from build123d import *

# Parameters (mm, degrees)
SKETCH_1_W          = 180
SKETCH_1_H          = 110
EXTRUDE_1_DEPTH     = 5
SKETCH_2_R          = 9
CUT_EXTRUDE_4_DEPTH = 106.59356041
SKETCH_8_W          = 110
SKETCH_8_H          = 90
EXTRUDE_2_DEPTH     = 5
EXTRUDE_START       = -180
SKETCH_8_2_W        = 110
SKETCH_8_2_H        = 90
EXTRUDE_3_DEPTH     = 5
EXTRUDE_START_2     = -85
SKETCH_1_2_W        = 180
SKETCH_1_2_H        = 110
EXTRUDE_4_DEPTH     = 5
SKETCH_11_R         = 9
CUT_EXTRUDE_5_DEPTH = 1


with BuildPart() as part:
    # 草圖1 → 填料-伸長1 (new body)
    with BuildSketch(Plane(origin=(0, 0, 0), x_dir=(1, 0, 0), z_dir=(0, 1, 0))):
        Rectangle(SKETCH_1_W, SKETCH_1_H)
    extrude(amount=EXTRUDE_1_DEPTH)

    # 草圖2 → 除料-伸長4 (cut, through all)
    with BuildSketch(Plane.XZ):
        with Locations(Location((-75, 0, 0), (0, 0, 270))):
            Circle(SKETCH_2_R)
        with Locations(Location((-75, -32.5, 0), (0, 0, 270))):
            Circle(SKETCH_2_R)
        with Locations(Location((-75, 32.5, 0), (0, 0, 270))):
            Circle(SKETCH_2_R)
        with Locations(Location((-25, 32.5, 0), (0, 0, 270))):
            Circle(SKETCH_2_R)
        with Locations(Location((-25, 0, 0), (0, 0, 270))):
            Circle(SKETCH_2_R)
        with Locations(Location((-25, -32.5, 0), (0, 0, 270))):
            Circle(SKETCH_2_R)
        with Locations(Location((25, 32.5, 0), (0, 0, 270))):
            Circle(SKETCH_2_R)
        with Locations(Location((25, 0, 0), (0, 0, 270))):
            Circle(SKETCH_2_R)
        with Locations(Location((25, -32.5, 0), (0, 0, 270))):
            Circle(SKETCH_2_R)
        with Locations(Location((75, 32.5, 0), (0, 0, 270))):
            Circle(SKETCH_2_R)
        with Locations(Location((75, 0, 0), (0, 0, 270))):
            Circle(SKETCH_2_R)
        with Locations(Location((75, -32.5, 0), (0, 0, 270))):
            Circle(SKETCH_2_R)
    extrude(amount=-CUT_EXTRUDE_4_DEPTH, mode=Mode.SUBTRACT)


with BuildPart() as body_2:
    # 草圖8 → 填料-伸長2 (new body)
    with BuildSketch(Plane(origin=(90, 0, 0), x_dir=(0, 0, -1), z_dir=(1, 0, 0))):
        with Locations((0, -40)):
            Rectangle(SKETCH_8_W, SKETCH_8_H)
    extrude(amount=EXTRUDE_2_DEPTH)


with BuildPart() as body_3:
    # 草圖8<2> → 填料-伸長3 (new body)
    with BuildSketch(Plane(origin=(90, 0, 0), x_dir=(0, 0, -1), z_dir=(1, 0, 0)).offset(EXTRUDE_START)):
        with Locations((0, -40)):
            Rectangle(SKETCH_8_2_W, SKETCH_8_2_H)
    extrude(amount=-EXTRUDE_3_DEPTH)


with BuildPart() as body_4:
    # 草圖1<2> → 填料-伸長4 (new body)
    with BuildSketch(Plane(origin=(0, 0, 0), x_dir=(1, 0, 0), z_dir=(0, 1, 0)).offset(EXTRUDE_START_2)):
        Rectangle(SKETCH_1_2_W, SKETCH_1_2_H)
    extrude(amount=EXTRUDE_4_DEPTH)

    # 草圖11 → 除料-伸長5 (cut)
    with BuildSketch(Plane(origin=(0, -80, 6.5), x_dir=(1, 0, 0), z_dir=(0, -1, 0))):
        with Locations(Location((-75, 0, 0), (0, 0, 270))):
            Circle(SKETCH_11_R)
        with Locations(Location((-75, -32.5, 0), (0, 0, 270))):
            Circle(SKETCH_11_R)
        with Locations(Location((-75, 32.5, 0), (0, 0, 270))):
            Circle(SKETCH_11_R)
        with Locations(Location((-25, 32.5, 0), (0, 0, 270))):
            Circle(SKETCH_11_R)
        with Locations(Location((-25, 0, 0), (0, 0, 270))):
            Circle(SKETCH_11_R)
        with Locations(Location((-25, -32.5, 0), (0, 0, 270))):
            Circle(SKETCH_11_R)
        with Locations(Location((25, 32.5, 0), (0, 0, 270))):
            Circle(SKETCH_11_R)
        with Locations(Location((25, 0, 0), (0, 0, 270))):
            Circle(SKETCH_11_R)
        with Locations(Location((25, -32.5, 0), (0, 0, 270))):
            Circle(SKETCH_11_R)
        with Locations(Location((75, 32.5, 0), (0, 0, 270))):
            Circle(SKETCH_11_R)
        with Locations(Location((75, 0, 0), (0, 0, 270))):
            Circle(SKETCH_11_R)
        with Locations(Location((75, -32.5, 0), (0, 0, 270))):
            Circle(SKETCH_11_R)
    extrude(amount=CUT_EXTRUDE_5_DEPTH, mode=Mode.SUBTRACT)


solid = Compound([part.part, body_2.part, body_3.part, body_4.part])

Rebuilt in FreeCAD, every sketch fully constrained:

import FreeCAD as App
import Part
import Sketcher

doc = App.newDocument("Part")
params = doc.addObject("Spreadsheet::Sheet", "Params")
for row, (alias, value) in enumerate([
    ("sketch1_width", "180 mm"),
    ("sketch1_height", "110 mm"),
    ("pad1_length", "5 mm"),
    ("sketch2_diameter", "18 mm"),
    ("sketch3_width", "90 mm"),
    ("sketch3_height", "110 mm"),
    ("pad2_length", "5 mm"),
    ("sketch4_width", "90 mm"),
    ("sketch4_height", "110 mm"),
    ("pad3_length", "5 mm"),
    ("sketch5_width", "180 mm"),
    ("sketch5_height", "110 mm"),
    ("pad4_length", "5 mm"),
    ("sketch6_diameter", "18 mm"),
    ("pocket2_length", "1 mm"),
], start=1):
    params.set(f"A{row}", alias)
    params.set(f"B{row}", "=" + value)
    params.setAlias(f"B{row}", alias)

body = doc.addObject("PartDesign::Body", "Body")

sketch1 = body.newObject("Sketcher::SketchObject", "Sketch")
sketch1.AttachmentSupport = (doc.getObject("XZ_Plane"), [""])
sketch1.MapMode = "FlatFace"
sketch1.addGeometry(Part.LineSegment(App.Vector(-90, -55, 0), App.Vector(-90, 55, 0)), False)
sketch1.addGeometry(Part.LineSegment(App.Vector(-90, 55, 0), App.Vector(90, 55, 0)), False)
sketch1.addGeometry(Part.LineSegment(App.Vector(90, 55, 0), App.Vector(90, -55, 0)), False)
sketch1.addGeometry(Part.LineSegment(App.Vector(90, -55, 0), App.Vector(-90, -55, 0)), False)
sketch1.addConstraint(Sketcher.Constraint("Coincident", 0, 2, 1, 1))
sketch1.addConstraint(Sketcher.Constraint("Coincident", 1, 2, 2, 1))
sketch1.addConstraint(Sketcher.Constraint("Coincident", 2, 2, 3, 1))
sketch1.addConstraint(Sketcher.Constraint("Coincident", 3, 2, 0, 1))
sketch1.addConstraint(Sketcher.Constraint("Vertical", 0))
sketch1.addConstraint(Sketcher.Constraint("Horizontal", 1))
sketch1.addConstraint(Sketcher.Constraint("Vertical", 2))
sketch1.addConstraint(Sketcher.Constraint("Horizontal", 3))
sketch1.addConstraint(Sketcher.Constraint("Symmetric", 0, 2, 2, 2, -1, 1))
sketch1.addConstraint(Sketcher.Constraint("DistanceX", 1, 1, 1, 2, 180.0))
sketch1.addConstraint(Sketcher.Constraint("DistanceY", 0, 1, 0, 2, 110.0))
sketch1.setExpression("Constraints[9]", "Params.sketch1_width")
sketch1.setExpression("Constraints[10]", "Params.sketch1_height")
pad1 = body.newObject("PartDesign::Pad", "Pad")
pad1.Profile = sketch1
pad1.setExpression("Length", "Params.pad1_length")
pad1.Reversed = True

sketch2 = body.newObject("Sketcher::SketchObject", "Sketch001")
sketch2.AttachmentSupport = (doc.getObject("XZ_Plane"), [""])
sketch2.MapMode = "FlatFace"
sketch2.addGeometry(Part.Circle(App.Vector(-75, 0, 0), App.Vector(0, 0, 1), 9), False)
sketch2.addGeometry(Part.Circle(App.Vector(-75, -32, 0), App.Vector(0, 0, 1), 9), False)
sketch2.addGeometry(Part.Circle(App.Vector(-75, 32, 0), App.Vector(0, 0, 1), 9), False)
sketch2.addGeometry(Part.Circle(App.Vector(-25, 32, 0), App.Vector(0, 0, 1), 9), False)
sketch2.addGeometry(Part.Circle(App.Vector(-25, 0, 0), App.Vector(0, 0, 1), 9), False)
sketch2.addGeometry(Part.Circle(App.Vector(-25, -32, 0), App.Vector(0, 0, 1), 9), False)
sketch2.addGeometry(Part.Circle(App.Vector(25, 32, 0), App.Vector(0, 0, 1), 9), False)
sketch2.addGeometry(Part.Circle(App.Vector(25, 0, 0), App.Vector(0, 0, 1), 9), False)
sketch2.addGeometry(Part.Circle(App.Vector(25, -32, 0), App.Vector(0, 0, 1), 9), False)
sketch2.addGeometry(Part.Circle(App.Vector(75, 32, 0), App.Vector(0, 0, 1), 9), False)
sketch2.addGeometry(Part.Circle(App.Vector(75, 0, 0), App.Vector(0, 0, 1), 9), False)
sketch2.addGeometry(Part.Circle(App.Vector(75, -32, 0), App.Vector(0, 0, 1), 9), False)
sketch2.addConstraint(Sketcher.Constraint("Equal", 0, 1))
sketch2.addConstraint(Sketcher.Constraint("Equal", 1, 2))
sketch2.addConstraint(Sketcher.Constraint("Equal", 2, 3))
sketch2.addConstraint(Sketcher.Constraint("Equal", 3, 4))
sketch2.addConstraint(Sketcher.Constraint("Equal", 4, 5))
sketch2.addConstraint(Sketcher.Constraint("Equal", 5, 6))
sketch2.addConstraint(Sketcher.Constraint("Equal", 6, 7))
sketch2.addConstraint(Sketcher.Constraint("Equal", 7, 8))
sketch2.addConstraint(Sketcher.Constraint("Equal", 8, 9))
sketch2.addConstraint(Sketcher.Constraint("Equal", 9, 10))
sketch2.addConstraint(Sketcher.Constraint("Equal", 10, 11))
sketch2.addConstraint(Sketcher.Constraint("Symmetric", 5, 3, 6, 3, -1, 1))
sketch2.addConstraint(Sketcher.Constraint("Symmetric", 4, 3, 7, 3, -1, 1))
sketch2.addConstraint(Sketcher.Constraint("Symmetric", 3, 3, 8, 3, -1, 1))
sketch2.addConstraint(Sketcher.Constraint("Symmetric", 1, 3, 9, 3, -1, 1))
sketch2.addConstraint(Sketcher.Constraint("Symmetric", 0, 3, 10, 3, -1, 1))
sketch2.addConstraint(Sketcher.Constraint("Symmetric", 2, 3, 11, 3, -1, 1))
sketch2.addConstraint(Sketcher.Constraint("Symmetric", 3, 3, 6, 3, -2))
sketch2.addConstraint(Sketcher.Constraint("Symmetric", 2, 3, 9, 3, -2))
sketch2.addConstraint(Sketcher.Constraint("PointOnObject", 0, 3, -1))
sketch2.addConstraint(Sketcher.Constraint("PointOnObject", 4, 3, -1))
sketch2.addConstraint(Sketcher.Constraint("Horizontal", 2, 3, 3, 3))
sketch2.addConstraint(Sketcher.Constraint("Vertical", 0, 3, 1, 3))
sketch2.addConstraint(Sketcher.Constraint("Vertical", 3, 3, 4, 3))
sketch2.addConstraint(Sketcher.Constraint("Diameter", 0, 18.0))
sketch2.addConstraint(Sketcher.Constraint("DistanceX", 0, 3, -1, 1, 75.0))
sketch2.addConstraint(Sketcher.Constraint("DistanceX", 3, 3, -1, 1, 25.0))
sketch2.addConstraint(Sketcher.Constraint("DistanceY", 1, 3, 2, 3, 65.0))
sketch2.setExpression("Constraints[24]", "Params.sketch2_diameter")
pocket1 = body.newObject("PartDesign::Pocket", "Pocket")
pocket1.Profile = sketch2
pocket1.Type = "ThroughAll"
body2 = doc.addObject("PartDesign::Body", "Body001")

sketch3 = body2.newObject("Sketcher::SketchObject", "Sketch002")
sketch3.AttachmentSupport = (doc.getObject("YZ_Plane001"), [""])
sketch3.MapMode = "FlatFace"
sketch3.AttachmentOffset = App.Placement(App.Vector(0, 0, 90), App.Rotation())
sketch3.addGeometry(Part.LineSegment(App.Vector(5, 55, 0), App.Vector(-85, 55, 0)), False)
sketch3.addGeometry(Part.LineSegment(App.Vector(-85, 55, 0), App.Vector(-85, -55, 0)), False)
sketch3.addGeometry(Part.LineSegment(App.Vector(-85, -55, 0), App.Vector(5, -55, 0)), False)
sketch3.addGeometry(Part.LineSegment(App.Vector(5, -55, 0), App.Vector(5, 55, 0)), False)
sketch3.addConstraint(Sketcher.Constraint("Coincident", 0, 2, 1, 1))
sketch3.addConstraint(Sketcher.Constraint("Coincident", 1, 2, 2, 1))
sketch3.addConstraint(Sketcher.Constraint("Coincident", 2, 2, 3, 1))
sketch3.addConstraint(Sketcher.Constraint("Coincident", 3, 2, 0, 1))
sketch3.addConstraint(Sketcher.Constraint("Horizontal", 0))
sketch3.addConstraint(Sketcher.Constraint("Vertical", 1))
sketch3.addConstraint(Sketcher.Constraint("Horizontal", 2))
sketch3.addConstraint(Sketcher.Constraint("Vertical", 3))
sketch3.addConstraint(Sketcher.Constraint("DistanceX", 0, 2, 0, 1, 90.0))
sketch3.addConstraint(Sketcher.Constraint("DistanceY", 1, 2, 1, 1, 110.0))
sketch3.addConstraint(Sketcher.Constraint("DistanceX", 0, 2, -1, 1, 85.0))
sketch3.addConstraint(Sketcher.Constraint("DistanceY", -1, 1, 0, 2, 55.0))
sketch3.setExpression("Constraints[8]", "Params.sketch3_width")
sketch3.setExpression("Constraints[9]", "Params.sketch3_height")
pad2 = body2.newObject("PartDesign::Pad", "Pad001")
pad2.Profile = sketch3
pad2.setExpression("Length", "Params.pad2_length")
body3 = doc.addObject("PartDesign::Body", "Body002")

sketch4 = body3.newObject("Sketcher::SketchObject", "Sketch003")
sketch4.AttachmentSupport = (doc.getObject("YZ_Plane002"), [""])
sketch4.MapMode = "FlatFace"
sketch4.AttachmentOffset = App.Placement(App.Vector(0, 0, -90), App.Rotation())
sketch4.addGeometry(Part.LineSegment(App.Vector(5, 55, 0), App.Vector(-85, 55, 0)), False)
sketch4.addGeometry(Part.LineSegment(App.Vector(-85, 55, 0), App.Vector(-85, -55, 0)), False)
sketch4.addGeometry(Part.LineSegment(App.Vector(-85, -55, 0), App.Vector(5, -55, 0)), False)
sketch4.addGeometry(Part.LineSegment(App.Vector(5, -55, 0), App.Vector(5, 55, 0)), False)
sketch4.addConstraint(Sketcher.Constraint("Coincident", 0, 2, 1, 1))
sketch4.addConstraint(Sketcher.Constraint("Coincident", 1, 2, 2, 1))
sketch4.addConstraint(Sketcher.Constraint("Coincident", 2, 2, 3, 1))
sketch4.addConstraint(Sketcher.Constraint("Coincident", 3, 2, 0, 1))
sketch4.addConstraint(Sketcher.Constraint("Horizontal", 0))
sketch4.addConstraint(Sketcher.Constraint("Vertical", 1))
sketch4.addConstraint(Sketcher.Constraint("Horizontal", 2))
sketch4.addConstraint(Sketcher.Constraint("Vertical", 3))
sketch4.addConstraint(Sketcher.Constraint("DistanceX", 0, 2, 0, 1, 90.0))
sketch4.addConstraint(Sketcher.Constraint("DistanceY", 1, 2, 1, 1, 110.0))
sketch4.addConstraint(Sketcher.Constraint("DistanceX", 0, 2, -1, 1, 85.0))
sketch4.addConstraint(Sketcher.Constraint("DistanceY", -1, 1, 0, 2, 55.0))
sketch4.setExpression("Constraints[8]", "Params.sketch4_width")
sketch4.setExpression("Constraints[9]", "Params.sketch4_height")
pad3 = body3.newObject("PartDesign::Pad", "Pad002")
pad3.Profile = sketch4
pad3.setExpression("Length", "Params.pad3_length")
pad3.Reversed = True
body4 = doc.addObject("PartDesign::Body", "Body003")

sketch5 = body4.newObject("Sketcher::SketchObject", "Sketch004")
sketch5.AttachmentSupport = (doc.getObject("XZ_Plane003"), [""])
sketch5.MapMode = "FlatFace"
sketch5.AttachmentOffset = App.Placement(App.Vector(0, 0, 85), App.Rotation())
sketch5.addGeometry(Part.LineSegment(App.Vector(-90, -55, 0), App.Vector(-90, 55, 0)), False)
sketch5.addGeometry(Part.LineSegment(App.Vector(-90, 55, 0), App.Vector(90, 55, 0)), False)
sketch5.addGeometry(Part.LineSegment(App.Vector(90, 55, 0), App.Vector(90, -55, 0)), False)
sketch5.addGeometry(Part.LineSegment(App.Vector(90, -55, 0), App.Vector(-90, -55, 0)), False)
sketch5.addConstraint(Sketcher.Constraint("Coincident", 0, 2, 1, 1))
sketch5.addConstraint(Sketcher.Constraint("Coincident", 1, 2, 2, 1))
sketch5.addConstraint(Sketcher.Constraint("Coincident", 2, 2, 3, 1))
sketch5.addConstraint(Sketcher.Constraint("Coincident", 3, 2, 0, 1))
sketch5.addConstraint(Sketcher.Constraint("Vertical", 0))
sketch5.addConstraint(Sketcher.Constraint("Horizontal", 1))
sketch5.addConstraint(Sketcher.Constraint("Vertical", 2))
sketch5.addConstraint(Sketcher.Constraint("Horizontal", 3))
sketch5.addConstraint(Sketcher.Constraint("Symmetric", 0, 2, 2, 2, -1, 1))
sketch5.addConstraint(Sketcher.Constraint("DistanceX", 1, 1, 1, 2, 180.0))
sketch5.addConstraint(Sketcher.Constraint("DistanceY", 0, 1, 0, 2, 110.0))
sketch5.setExpression("Constraints[9]", "Params.sketch5_width")
sketch5.setExpression("Constraints[10]", "Params.sketch5_height")
pad4 = body4.newObject("PartDesign::Pad", "Pad003")
pad4.Profile = sketch5
pad4.setExpression("Length", "Params.pad4_length")
pad4.Reversed = True

sketch6 = body4.newObject("Sketcher::SketchObject", "Sketch005")
sketch6.AttachmentSupport = (doc.getObject("XZ_Plane003"), [""])
sketch6.MapMode = "FlatFace"
sketch6.AttachmentOffset = App.Placement(App.Vector(0, 0, 80), App.Rotation())
sketch6.addGeometry(Part.Circle(App.Vector(-75, 6, 0), App.Vector(0, 0, 1), 9), False)
sketch6.addGeometry(Part.Circle(App.Vector(-75, -26, 0), App.Vector(0, 0, 1), 9), False)
sketch6.addGeometry(Part.Circle(App.Vector(-75, 39, 0), App.Vector(0, 0, 1), 9), False)
sketch6.addGeometry(Part.Circle(App.Vector(-25, 39, 0), App.Vector(0, 0, 1), 9), False)
sketch6.addGeometry(Part.Circle(App.Vector(-25, 6, 0), App.Vector(0, 0, 1), 9), False)
sketch6.addGeometry(Part.Circle(App.Vector(-25, -26, 0), App.Vector(0, 0, 1), 9), False)
sketch6.addGeometry(Part.Circle(App.Vector(25, 39, 0), App.Vector(0, 0, 1), 9), False)
sketch6.addGeometry(Part.Circle(App.Vector(25, 6, 0), App.Vector(0, 0, 1), 9), False)
sketch6.addGeometry(Part.Circle(App.Vector(25, -26, 0), App.Vector(0, 0, 1), 9), False)
sketch6.addGeometry(Part.Circle(App.Vector(75, 39, 0), App.Vector(0, 0, 1), 9), False)
sketch6.addGeometry(Part.Circle(App.Vector(75, 6, 0), App.Vector(0, 0, 1), 9), False)
sketch6.addGeometry(Part.Circle(App.Vector(75, -26, 0), App.Vector(0, 0, 1), 9), False)
sketch6.addConstraint(Sketcher.Constraint("Equal", 0, 1))
sketch6.addConstraint(Sketcher.Constraint("Equal", 1, 2))
sketch6.addConstraint(Sketcher.Constraint("Equal", 2, 3))
sketch6.addConstraint(Sketcher.Constraint("Equal", 3, 4))
sketch6.addConstraint(Sketcher.Constraint("Equal", 4, 5))
sketch6.addConstraint(Sketcher.Constraint("Equal", 5, 6))
sketch6.addConstraint(Sketcher.Constraint("Equal", 6, 7))
sketch6.addConstraint(Sketcher.Constraint("Equal", 7, 8))
sketch6.addConstraint(Sketcher.Constraint("Equal", 8, 9))
sketch6.addConstraint(Sketcher.Constraint("Equal", 9, 10))
sketch6.addConstraint(Sketcher.Constraint("Equal", 10, 11))
sketch6.addConstraint(Sketcher.Constraint("Symmetric", 3, 3, 6, 3, -2))
sketch6.addConstraint(Sketcher.Constraint("Symmetric", 4, 3, 7, 3, -2))
sketch6.addConstraint(Sketcher.Constraint("Symmetric", 5, 3, 8, 3, -2))
sketch6.addConstraint(Sketcher.Constraint("Symmetric", 2, 3, 9, 3, -2))
sketch6.addConstraint(Sketcher.Constraint("Symmetric", 0, 3, 10, 3, -2))
sketch6.addConstraint(Sketcher.Constraint("Symmetric", 1, 3, 11, 3, -2))
sketch6.addConstraint(Sketcher.Constraint("Horizontal", 2, 3, 3, 3))
sketch6.addConstraint(Sketcher.Constraint("Horizontal", 0, 3, 4, 3))
sketch6.addConstraint(Sketcher.Constraint("Horizontal", 1, 3, 5, 3))
sketch6.addConstraint(Sketcher.Constraint("Vertical", 0, 3, 1, 3))
sketch6.addConstraint(Sketcher.Constraint("Vertical", 1, 3, 2, 3))
sketch6.addConstraint(Sketcher.Constraint("Vertical", 3, 3, 4, 3))
sketch6.addConstraint(Sketcher.Constraint("Vertical", 4, 3, 5, 3))
sketch6.addConstraint(Sketcher.Constraint("Diameter", 0, 18.0))
sketch6.addConstraint(Sketcher.Constraint("DistanceX", 0, 3, -1, 1, 75.0))
sketch6.addConstraint(Sketcher.Constraint("DistanceY", 1, 3, -1, 1, 26.0))
sketch6.addConstraint(Sketcher.Constraint("DistanceY", -1, 1, 2, 3, 39.0))
sketch6.addConstraint(Sketcher.Constraint("DistanceX", 3, 3, -1, 1, 25.0))
sketch6.addConstraint(Sketcher.Constraint("DistanceY", -1, 1, 0, 3, 6.5))
sketch6.setExpression("Constraints[24]", "Params.sketch6_diameter")
pocket2 = body4.newObject("PartDesign::Pocket", "Pocket001")
pocket2.Profile = sketch6
pocket2.setExpression("Length", "Params.pocket2_length")
pocket2.Reversed = True

doc.recompute()
